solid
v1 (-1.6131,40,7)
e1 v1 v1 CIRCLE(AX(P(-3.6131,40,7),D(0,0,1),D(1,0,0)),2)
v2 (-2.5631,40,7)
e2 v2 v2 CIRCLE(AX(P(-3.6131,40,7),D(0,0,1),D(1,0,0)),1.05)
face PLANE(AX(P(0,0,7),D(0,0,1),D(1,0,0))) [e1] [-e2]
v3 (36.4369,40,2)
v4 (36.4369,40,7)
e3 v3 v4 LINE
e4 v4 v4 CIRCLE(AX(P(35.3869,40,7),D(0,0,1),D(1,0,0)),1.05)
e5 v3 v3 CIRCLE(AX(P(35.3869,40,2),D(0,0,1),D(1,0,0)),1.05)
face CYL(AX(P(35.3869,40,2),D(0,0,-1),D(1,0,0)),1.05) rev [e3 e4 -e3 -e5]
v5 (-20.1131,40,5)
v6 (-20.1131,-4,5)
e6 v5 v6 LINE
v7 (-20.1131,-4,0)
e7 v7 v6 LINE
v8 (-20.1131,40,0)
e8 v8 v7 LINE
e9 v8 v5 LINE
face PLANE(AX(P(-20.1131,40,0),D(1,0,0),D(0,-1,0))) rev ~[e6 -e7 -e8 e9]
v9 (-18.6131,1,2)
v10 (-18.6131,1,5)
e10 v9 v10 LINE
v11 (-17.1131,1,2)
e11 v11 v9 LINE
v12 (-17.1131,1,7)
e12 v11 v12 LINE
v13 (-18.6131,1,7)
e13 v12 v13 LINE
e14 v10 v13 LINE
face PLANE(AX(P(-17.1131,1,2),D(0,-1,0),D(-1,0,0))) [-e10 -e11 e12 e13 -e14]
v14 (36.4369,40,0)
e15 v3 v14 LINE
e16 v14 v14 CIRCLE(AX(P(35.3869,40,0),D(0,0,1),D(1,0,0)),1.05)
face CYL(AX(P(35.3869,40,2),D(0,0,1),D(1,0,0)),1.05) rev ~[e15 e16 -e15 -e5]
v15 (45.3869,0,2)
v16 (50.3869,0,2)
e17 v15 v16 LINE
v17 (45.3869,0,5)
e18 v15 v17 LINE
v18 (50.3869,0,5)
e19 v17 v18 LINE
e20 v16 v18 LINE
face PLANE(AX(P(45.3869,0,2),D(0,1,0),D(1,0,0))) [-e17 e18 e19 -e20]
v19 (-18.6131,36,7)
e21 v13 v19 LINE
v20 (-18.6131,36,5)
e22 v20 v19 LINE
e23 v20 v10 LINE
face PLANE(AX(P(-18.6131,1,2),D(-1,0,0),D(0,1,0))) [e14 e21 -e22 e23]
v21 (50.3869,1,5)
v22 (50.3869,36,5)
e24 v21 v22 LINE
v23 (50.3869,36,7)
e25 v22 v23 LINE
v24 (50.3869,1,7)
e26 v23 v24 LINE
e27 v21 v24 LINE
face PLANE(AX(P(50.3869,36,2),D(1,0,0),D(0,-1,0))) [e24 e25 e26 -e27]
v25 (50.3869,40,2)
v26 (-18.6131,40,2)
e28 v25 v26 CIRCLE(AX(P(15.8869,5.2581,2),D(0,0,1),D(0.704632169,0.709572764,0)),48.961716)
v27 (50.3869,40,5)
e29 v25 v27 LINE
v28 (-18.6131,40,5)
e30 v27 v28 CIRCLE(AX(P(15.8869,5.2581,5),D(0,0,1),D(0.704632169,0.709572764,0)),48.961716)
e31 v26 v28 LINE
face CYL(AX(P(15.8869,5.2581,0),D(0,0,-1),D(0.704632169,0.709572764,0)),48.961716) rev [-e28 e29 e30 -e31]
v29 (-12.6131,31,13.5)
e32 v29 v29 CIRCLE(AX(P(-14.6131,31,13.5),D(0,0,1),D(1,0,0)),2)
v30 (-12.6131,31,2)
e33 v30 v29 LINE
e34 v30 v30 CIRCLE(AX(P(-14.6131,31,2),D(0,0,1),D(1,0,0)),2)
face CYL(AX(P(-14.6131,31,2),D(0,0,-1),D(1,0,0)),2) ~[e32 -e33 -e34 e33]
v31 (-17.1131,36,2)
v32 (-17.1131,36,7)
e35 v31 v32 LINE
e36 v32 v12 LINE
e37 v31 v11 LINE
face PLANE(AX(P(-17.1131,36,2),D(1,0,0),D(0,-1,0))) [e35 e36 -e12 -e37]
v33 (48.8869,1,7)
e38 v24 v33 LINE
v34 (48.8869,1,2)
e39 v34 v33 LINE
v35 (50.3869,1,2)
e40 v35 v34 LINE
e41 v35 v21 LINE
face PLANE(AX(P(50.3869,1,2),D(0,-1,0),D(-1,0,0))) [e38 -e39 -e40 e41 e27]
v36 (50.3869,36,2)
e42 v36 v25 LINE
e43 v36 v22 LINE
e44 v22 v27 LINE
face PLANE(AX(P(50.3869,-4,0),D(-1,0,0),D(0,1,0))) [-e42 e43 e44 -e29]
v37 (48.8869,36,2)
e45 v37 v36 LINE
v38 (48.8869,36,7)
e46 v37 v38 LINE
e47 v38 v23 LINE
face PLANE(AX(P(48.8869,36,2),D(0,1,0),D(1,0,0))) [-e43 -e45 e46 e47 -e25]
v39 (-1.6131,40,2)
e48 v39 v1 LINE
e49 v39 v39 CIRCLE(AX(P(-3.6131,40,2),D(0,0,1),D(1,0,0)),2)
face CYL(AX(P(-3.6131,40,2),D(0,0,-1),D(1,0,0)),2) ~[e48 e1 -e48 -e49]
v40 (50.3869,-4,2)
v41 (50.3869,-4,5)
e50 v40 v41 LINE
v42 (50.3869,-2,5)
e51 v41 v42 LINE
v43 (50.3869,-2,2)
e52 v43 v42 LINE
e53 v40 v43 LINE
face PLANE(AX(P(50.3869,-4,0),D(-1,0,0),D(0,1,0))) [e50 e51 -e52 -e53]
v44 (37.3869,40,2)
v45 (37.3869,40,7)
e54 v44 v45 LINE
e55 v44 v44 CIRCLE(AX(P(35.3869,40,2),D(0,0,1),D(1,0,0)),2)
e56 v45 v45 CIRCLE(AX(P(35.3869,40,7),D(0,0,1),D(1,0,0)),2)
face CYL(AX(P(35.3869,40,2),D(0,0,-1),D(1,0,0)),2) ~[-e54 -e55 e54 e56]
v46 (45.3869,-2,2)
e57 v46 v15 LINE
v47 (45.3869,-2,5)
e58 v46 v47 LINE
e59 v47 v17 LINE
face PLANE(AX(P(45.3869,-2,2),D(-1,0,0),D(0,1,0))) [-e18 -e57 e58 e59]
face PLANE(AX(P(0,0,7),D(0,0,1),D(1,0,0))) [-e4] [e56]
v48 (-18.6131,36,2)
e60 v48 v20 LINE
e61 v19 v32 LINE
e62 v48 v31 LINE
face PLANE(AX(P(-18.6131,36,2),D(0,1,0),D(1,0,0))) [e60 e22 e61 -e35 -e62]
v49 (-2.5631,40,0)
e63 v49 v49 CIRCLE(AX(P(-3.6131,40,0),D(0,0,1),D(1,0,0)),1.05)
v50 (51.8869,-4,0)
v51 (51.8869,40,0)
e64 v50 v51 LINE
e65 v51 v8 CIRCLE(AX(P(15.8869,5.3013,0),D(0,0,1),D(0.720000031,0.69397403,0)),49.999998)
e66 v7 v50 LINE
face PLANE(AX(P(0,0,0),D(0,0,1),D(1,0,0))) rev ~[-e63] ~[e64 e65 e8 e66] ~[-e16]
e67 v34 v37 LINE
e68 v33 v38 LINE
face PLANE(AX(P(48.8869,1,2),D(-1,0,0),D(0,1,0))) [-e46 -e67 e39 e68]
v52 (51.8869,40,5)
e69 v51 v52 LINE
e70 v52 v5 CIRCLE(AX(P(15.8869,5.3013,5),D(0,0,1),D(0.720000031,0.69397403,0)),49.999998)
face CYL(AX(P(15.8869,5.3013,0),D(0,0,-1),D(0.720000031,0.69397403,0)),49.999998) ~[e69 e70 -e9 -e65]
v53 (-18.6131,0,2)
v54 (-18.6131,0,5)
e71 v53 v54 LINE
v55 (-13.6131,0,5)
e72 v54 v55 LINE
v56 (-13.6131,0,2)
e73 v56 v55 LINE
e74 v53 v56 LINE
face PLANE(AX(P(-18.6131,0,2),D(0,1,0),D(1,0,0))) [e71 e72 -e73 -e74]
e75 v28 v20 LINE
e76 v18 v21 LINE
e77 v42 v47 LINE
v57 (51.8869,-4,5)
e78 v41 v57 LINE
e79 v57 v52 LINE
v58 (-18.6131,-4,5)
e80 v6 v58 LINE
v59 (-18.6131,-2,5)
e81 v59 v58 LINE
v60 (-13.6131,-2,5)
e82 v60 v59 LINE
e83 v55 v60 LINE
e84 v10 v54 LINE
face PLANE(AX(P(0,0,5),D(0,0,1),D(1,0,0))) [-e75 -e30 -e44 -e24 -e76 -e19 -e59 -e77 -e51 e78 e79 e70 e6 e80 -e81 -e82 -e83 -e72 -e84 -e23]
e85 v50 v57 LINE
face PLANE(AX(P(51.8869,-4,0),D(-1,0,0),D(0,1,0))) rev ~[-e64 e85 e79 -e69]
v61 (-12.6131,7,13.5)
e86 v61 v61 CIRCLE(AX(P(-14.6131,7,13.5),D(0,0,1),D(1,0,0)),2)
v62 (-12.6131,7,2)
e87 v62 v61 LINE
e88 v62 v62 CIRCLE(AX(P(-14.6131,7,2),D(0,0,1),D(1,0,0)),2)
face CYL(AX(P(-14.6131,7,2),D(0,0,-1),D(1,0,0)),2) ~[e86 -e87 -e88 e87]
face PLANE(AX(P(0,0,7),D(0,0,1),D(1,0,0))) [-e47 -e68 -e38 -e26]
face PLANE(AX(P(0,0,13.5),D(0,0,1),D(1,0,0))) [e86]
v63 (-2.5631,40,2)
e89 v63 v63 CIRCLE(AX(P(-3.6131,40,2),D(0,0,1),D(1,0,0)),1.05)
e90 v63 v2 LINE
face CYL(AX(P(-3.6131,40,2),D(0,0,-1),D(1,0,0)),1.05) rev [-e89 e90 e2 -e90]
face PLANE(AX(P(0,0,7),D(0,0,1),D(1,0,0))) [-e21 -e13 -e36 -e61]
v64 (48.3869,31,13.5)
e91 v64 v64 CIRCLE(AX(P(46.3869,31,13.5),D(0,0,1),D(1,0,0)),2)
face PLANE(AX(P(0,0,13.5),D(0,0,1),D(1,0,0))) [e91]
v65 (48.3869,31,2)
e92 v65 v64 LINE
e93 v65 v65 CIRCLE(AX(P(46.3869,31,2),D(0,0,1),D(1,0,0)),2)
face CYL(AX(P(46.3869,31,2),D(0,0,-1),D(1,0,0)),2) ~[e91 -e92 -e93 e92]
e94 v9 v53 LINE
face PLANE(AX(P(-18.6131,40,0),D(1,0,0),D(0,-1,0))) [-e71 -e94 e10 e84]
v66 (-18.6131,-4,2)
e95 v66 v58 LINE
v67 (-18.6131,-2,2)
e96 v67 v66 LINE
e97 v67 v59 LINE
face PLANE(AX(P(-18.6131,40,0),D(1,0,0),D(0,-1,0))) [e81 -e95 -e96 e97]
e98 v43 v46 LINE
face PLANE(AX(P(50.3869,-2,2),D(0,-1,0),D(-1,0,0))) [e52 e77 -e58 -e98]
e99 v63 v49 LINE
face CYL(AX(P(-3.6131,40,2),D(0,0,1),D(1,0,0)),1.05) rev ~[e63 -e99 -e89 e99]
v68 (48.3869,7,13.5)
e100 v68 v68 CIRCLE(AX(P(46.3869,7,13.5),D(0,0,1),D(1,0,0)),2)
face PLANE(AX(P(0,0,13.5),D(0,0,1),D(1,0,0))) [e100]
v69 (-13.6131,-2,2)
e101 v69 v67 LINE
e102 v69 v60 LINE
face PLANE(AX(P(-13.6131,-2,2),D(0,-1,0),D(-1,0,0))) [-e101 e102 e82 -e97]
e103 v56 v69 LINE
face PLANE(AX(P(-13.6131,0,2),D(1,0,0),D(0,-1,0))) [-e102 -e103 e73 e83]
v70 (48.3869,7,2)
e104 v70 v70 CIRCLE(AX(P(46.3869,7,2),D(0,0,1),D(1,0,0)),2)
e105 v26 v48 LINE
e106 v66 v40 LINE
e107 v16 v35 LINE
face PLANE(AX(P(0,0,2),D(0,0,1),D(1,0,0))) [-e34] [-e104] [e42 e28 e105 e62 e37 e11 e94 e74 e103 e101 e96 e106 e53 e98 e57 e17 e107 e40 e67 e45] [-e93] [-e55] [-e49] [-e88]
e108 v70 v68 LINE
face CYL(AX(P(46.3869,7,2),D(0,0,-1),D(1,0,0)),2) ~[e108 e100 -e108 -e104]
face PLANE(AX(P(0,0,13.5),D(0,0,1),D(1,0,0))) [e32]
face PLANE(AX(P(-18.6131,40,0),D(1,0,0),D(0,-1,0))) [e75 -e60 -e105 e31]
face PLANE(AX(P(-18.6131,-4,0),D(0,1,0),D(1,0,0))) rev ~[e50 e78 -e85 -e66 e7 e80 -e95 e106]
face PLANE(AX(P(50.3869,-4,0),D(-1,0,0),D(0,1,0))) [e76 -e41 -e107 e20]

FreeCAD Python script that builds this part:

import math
import FreeCAD as App
import Part
import Sketcher

doc = App.newDocument("Part")
body = doc.addObject("PartDesign::Body", "Body")

# Sketch on XY plane
sketch1 = body.newObject("Sketcher::SketchObject", "Sketch")
sketch1.AttachmentSupport = (doc.getObject("XY_Plane"), [""])
sketch1.MapMode = "FlatFace"
sketch1.addGeometry(Part.LineSegment(App.Vector(-18.6131, 40, 0), App.Vector(-18.6131, -4, 0)), False)
sketch1.addGeometry(Part.LineSegment(App.Vector(-18.6131, -4, 0), App.Vector(50.3869, -4, 0)), False)
sketch1.addGeometry(Part.LineSegment(App.Vector(50.3869, -4, 0), App.Vector(50.3869, 40, 0)), False)
sketch1.addGeometry(Part.ArcOfCircle(Part.Circle(App.Vector(15.8869, 5.2581, 0), App.Vector(0, 0, 1), 48.961716), math.radians(45.200165), math.radians(134.799835)), False)
sketch1.addConstraint(Sketcher.Constraint("Coincident", 0, 2, 1, 1))
sketch1.addConstraint(Sketcher.Constraint("Coincident", 1, 2, 2, 1))
sketch1.addConstraint(Sketcher.Constraint("Coincident", 2, 2, 3, 1))
sketch1.addConstraint(Sketcher.Constraint("Coincident", 3, 2, 0, 1))
sketch1.addConstraint(Sketcher.Constraint("Vertical", 0))
sketch1.addConstraint(Sketcher.Constraint("Horizontal", 1))
sketch1.addConstraint(Sketcher.Constraint("Vertical", 2))
sketch1.addConstraint(Sketcher.Constraint("Horizontal", 2, 2, 3, 2))
sketch1.addConstraint(Sketcher.Constraint("DistanceY", 0, 2, 0, 1, 44.0))
sketch1.addConstraint(Sketcher.Constraint("DistanceX", 1, 1, 1, 2, 69.0))
sketch1.addConstraint(Sketcher.Constraint("DistanceY", 0, 2, -1, 1, 4.0))
sketch1.addConstraint(Sketcher.Constraint("Radius", 3, 48.9617))
sketch1.addConstraint(Sketcher.Constraint("DistanceX", -1, 1, 3, 3, 15.887))
pad1 = body.newObject("PartDesign::Pad", "Pad")
pad1.Profile = sketch1
pad1.Length = 2

# Sketch on XY plane
sketch2 = body.newObject("Sketcher::SketchObject", "Sketch001")
sketch2.AttachmentSupport = (doc.getObject("XY_Plane"), [""])
sketch2.MapMode = "FlatFace"
sketch2.addGeometry(Part.LineSegment(App.Vector(-20.1131, 40, 0), App.Vector(-20.1131, -4, 0)), False)
sketch2.addGeometry(Part.LineSegment(App.Vector(-20.1131, -4, 0), App.Vector(-18.6131, -4, 0)), False)
sketch2.addGeometry(Part.LineSegment(App.Vector(-18.6131, -4, 0), App.Vector(-18.6131, 40, 0)), False)
sketch2.addGeometry(Part.ArcOfCircle(Part.Circle(App.Vector(15.8869, 5.2581, 0), App.Vector(0, 0, 1), 48.961716), math.radians(45.200165), math.radians(134.799835)), False)
sketch2.addGeometry(Part.LineSegment(App.Vector(50.3869, 40, 0), App.Vector(50.3869, -4, 0)), False)
sketch2.addGeometry(Part.LineSegment(App.Vector(50.3869, -4, 0), App.Vector(51.8869, -4, 0)), False)
sketch2.addGeometry(Part.LineSegment(App.Vector(51.8869, -4, 0), App.Vector(51.8869, 40, 0)), False)
sketch2.addGeometry(Part.ArcOfCircle(Part.Circle(App.Vector(15.8869, 5.3013, 0), App.Vector(0, 0, 1), 49.999998), math.radians(43.945517), math.radians(136.054483)), False)
sketch2.addConstraint(Sketcher.Constraint("Coincident", 0, 2, 1, 1))
sketch2.addConstraint(Sketcher.Constraint("Coincident", 1, 2, 2, 1))
sketch2.addConstraint(Sketcher.Constraint("Coincident", 2, 2, 3, 2))
sketch2.addConstraint(Sketcher.Constraint("Coincident", 3, 1, 4, 1))
sketch2.addConstraint(Sketcher.Constraint("Coincident", 4, 2, 5, 1))
sketch2.addConstraint(Sketcher.Constraint("Coincident", 5, 2, 6, 1))
sketch2.addConstraint(Sketcher.Constraint("Coincident", 6, 2, 7, 1))
sketch2.addConstraint(Sketcher.Constraint("Coincident", 7, 2, 0, 1))
sketch2.addConstraint(Sketcher.Constraint("Vertical", 0))
sketch2.addConstraint(Sketcher.Constraint("Horizontal", 1))
sketch2.addConstraint(Sketcher.Constraint("Vertical", 2))
sketch2.addConstraint(Sketcher.Constraint("Vertical", 4))
sketch2.addConstraint(Sketcher.Constraint("Horizontal", 5))
sketch2.addConstraint(Sketcher.Constraint("Vertical", 6))
sketch2.addConstraint(Sketcher.Constraint("Horizontal", 2, 2, 3, 1))
sketch2.addConstraint(Sketcher.Constraint("Horizontal", 1, 2, 4, 2))
sketch2.addConstraint(Sketcher.Constraint("Horizontal", 3, 1, 6, 2))
sketch2.addConstraint(Sketcher.Constraint("Horizontal", 6, 2, 7, 2))
sketch2.addConstraint(Sketcher.Constraint("Vertical", 3, 3, 7, 3))
sketch2.addConstraint(Sketcher.Constraint("Radius", 7, 50.0))
sketch2.addConstraint(Sketcher.Constraint("DistanceY", 0, 2, 0, 1, 44.0))
sketch2.addConstraint(Sketcher.Constraint("DistanceX", 1, 1, 1, 2, 1.5))
sketch2.addConstraint(Sketcher.Constraint("DistanceY", 0, 2, -1, 1, 4.0))
sketch2.addConstraint(Sketcher.Constraint("DistanceX", 0, 2, 3, 3, 36.0))
sketch2.addConstraint(Sketcher.Constraint("Radius", 3, 48.9617))
sketch2.addConstraint(Sketcher.Constraint("DistanceX", -1, 1, 3, 3, 15.887))
pad2 = body.newObject("PartDesign::Pad", "Pad001")
pad2.Profile = sketch2
pad2.Length = 5

# Sketch on XY plane
sketch3 = body.newObject("Sketcher::SketchObject", "Sketch002")
sketch3.AttachmentSupport = (doc.getObject("XY_Plane"), [""])
sketch3.MapMode = "FlatFace"
sketch3.AttachmentOffset = App.Placement(App.Vector(0, 0, 2), App.Rotation())
sketch3.addGeometry(Part.LineSegment(App.Vector(-18.6131, 0, 0), App.Vector(-18.6131, -2, 0)), False)
sketch3.addGeometry(Part.LineSegment(App.Vector(-18.6131, -2, 0), App.Vector(-13.6131, -2, 0)), False)
sketch3.addGeometry(Part.LineSegment(App.Vector(-13.6131, -2, 0), App.Vector(-13.6131, 0, 0)), False)
sketch3.addGeometry(Part.LineSegment(App.Vector(-13.6131, 0, 0), App.Vector(-18.6131, 0, 0)), False)
sketch3.addGeometry(Part.LineSegment(App.Vector(50.3869, -2, 0), App.Vector(50.3869, 0, 0)), False)
sketch3.addGeometry(Part.LineSegment(App.Vector(50.3869, 0, 0), App.Vector(45.3869, 0, 0)), False)
sketch3.addGeometry(Part.LineSegment(App.Vector(45.3869, 0, 0), App.Vector(45.3869, -2, 0)), False)
sketch3.addGeometry(Part.LineSegment(App.Vector(45.3869, -2, 0), App.Vector(50.3869, -2, 0)), False)
sketch3.addConstraint(Sketcher.Constraint("Coincident", 0, 2, 1, 1))
sketch3.addConstraint(Sketcher.Constraint("Coincident", 1, 2, 2, 1))
sketch3.addConstraint(Sketcher.Constraint("Coincident", 2, 2, 3, 1))
sketch3.addConstraint(Sketcher.Constraint("Coincident", 3, 2, 0, 1))
sketch3.addConstraint(Sketcher.Constraint("Coincident", 4, 2, 5, 1))
sketch3.addConstraint(Sketcher.Constraint("Coincident", 5, 2, 6, 1))
sketch3.addConstraint(Sketcher.Constraint("Coincident", 6, 2, 7, 1))
sketch3.addConstraint(Sketcher.Constraint("Coincident", 7, 2, 4, 1))
sketch3.addConstraint(Sketcher.Constraint("Vertical", 0))
sketch3.addConstraint(Sketcher.Constraint("Horizontal", 1))
sketch3.addConstraint(Sketcher.Constraint("Vertical", 2))
sketch3.addConstraint(Sketcher.Constraint("Horizontal", 3))
sketch3.addConstraint(Sketcher.Constraint("Vertical", 4))
sketch3.addConstraint(Sketcher.Constraint("Horizontal", 5))
sketch3.addConstraint(Sketcher.Constraint("Vertical", 6))
sketch3.addConstraint(Sketcher.Constraint("Horizontal", 7))
sketch3.addConstraint(Sketcher.Constraint("PointOnObject", 2, 2, -1))
sketch3.addConstraint(Sketcher.Constraint("PointOnObject", 4, 2, -1))
sketch3.addConstraint(Sketcher.Constraint("Horizontal", 1, 2, 6, 2))
sketch3.addConstraint(Sketcher.Constraint("Equal", 3, 5))
sketch3.addConstraint(Sketcher.Constraint("DistanceX", 1, 1, 1, 2, 5.0))
sketch3.addConstraint(Sketcher.Constraint("DistanceY", 0, 2, 0, 1, 2.0))
sketch3.addConstraint(Sketcher.Constraint("DistanceX", 2, 2, 5, 2, 59.0))
sketch3.addConstraint(Sketcher.Constraint("DistanceX", 0, 2, -1, 1, 18.613))
pad3 = body.newObject("PartDesign::Pad", "Pad002")
pad3.Profile = sketch3
pad3.Length = 3

# Sketch on XY plane
sketch4 = body.newObject("Sketcher::SketchObject", "Sketch003")
sketch4.AttachmentSupport = (doc.getObject("XY_Plane"), [""])
sketch4.MapMode = "FlatFace"
sketch4.AttachmentOffset = App.Placement(App.Vector(0, 0, 2), App.Rotation())
sketch4.addGeometry(Part.Circle(App.Vector(-14.6131, 7, 0), App.Vector(0, 0, 1), 2), False)
sketch4.addGeometry(Part.Circle(App.Vector(46.3869, 7, 0), App.Vector(0, 0, 1), 2), False)
sketch4.addGeometry(Part.Circle(App.Vector(46.3869, 31, 0), App.Vector(0, 0, 1), 2), False)
sketch4.addGeometry(Part.Circle(App.Vector(-14.6131, 31, 0), App.Vector(0, 0, 1), 2), False)
sketch4.addConstraint(Sketcher.Constraint("Equal", 0, 1))
sketch4.addConstraint(Sketcher.Constraint("Equal", 1, 2))
sketch4.addConstraint(Sketcher.Constraint("Equal", 2, 3))
sketch4.addConstraint(Sketcher.Constraint("Horizontal", 0, 3, 1, 3))
sketch4.addConstraint(Sketcher.Constraint("Horizontal", 2, 3, 3, 3))
sketch4.addConstraint(Sketcher.Constraint("Vertical", 1, 3, 2, 3))
sketch4.addConstraint(Sketcher.Constraint("Vertical", 0, 3, 3, 3))
sketch4.addConstraint(Sketcher.Constraint("Diameter", 0, 4.0))
sketch4.addConstraint(Sketcher.Constraint("DistanceY", -1, 1, 0, 3, 7.0))
sketch4.addConstraint(Sketcher.Constraint("DistanceY", -1, 1, 2, 3, 31.0))
sketch4.addConstraint(Sketcher.Constraint("DistanceX", 0, 3, 1, 3, 61.0))
sketch4.addConstraint(Sketcher.Constraint("DistanceX", 0, 3, -1, 1, 14.613))
pad4 = body.newObject("PartDesign::Pad", "Pad003")
pad4.Profile = sketch4
pad4.Length = 11.5

# Sketch on XY plane
sketch5 = body.newObject("Sketcher::SketchObject", "Sketch004")
sketch5.AttachmentSupport = (doc.getObject("XY_Plane"), [""])
sketch5.MapMode = "FlatFace"
sketch5.AttachmentOffset = App.Placement(App.Vector(0, 0, 2), App.Rotation())
sketch5.addGeometry(Part.LineSegment(App.Vector(-18.6131, 36, 0), App.Vector(-18.6131, 1, 0)), False)
sketch5.addGeometry(Part.LineSegment(App.Vector(-18.6131, 1, 0), App.Vector(-17.1131, 1, 0)), False)
sketch5.addGeometry(Part.LineSegment(App.Vector(-17.1131, 1, 0), App.Vector(-17.1131, 36, 0)), False)
sketch5.addGeometry(Part.LineSegment(App.Vector(-17.1131, 36, 0), App.Vector(-18.6131, 36, 0)), False)
sketch5.addGeometry(Part.LineSegment(App.Vector(50.3869, 1, 0), App.Vector(50.3869, 36, 0)), False)
sketch5.addGeometry(Part.LineSegment(App.Vector(50.3869, 36, 0), App.Vector(48.8869, 36, 0)), False)
sketch5.addGeometry(Part.LineSegment(App.Vector(48.8869, 36, 0), App.Vector(48.8869, 1, 0)), False)
sketch5.addGeometry(Part.LineSegment(App.Vector(48.8869, 1, 0), App.Vector(50.3869, 1, 0)), False)
sketch5.addGeometry(Part.Circle(App.Vector(-3.6131, 40, 0), App.Vector(0, 0, 1), 2), False)
sketch5.addGeometry(Part.Circle(App.Vector(-3.6131, 40, 0), App.Vector(0, 0, 1), 1.05), False)
sketch5.addGeometry(Part.Circle(App.Vector(35.3869, 40, 0), App.Vector(0, 0, 1), 2), False)
sketch5.addGeometry(Part.Circle(App.Vector(35.3869, 40, 0), App.Vector(0, 0, 1), 1.05), False)
sketch5.addConstraint(Sketcher.Constraint("Coincident", 0, 2, 1, 1))
sketch5.addConstraint(Sketcher.Constraint("Coincident", 1, 2, 2, 1))
sketch5.addConstraint(Sketcher.Constraint("Coincident", 2, 2, 3, 1))
sketch5.addConstraint(Sketcher.Constraint("Coincident", 3, 2, 0, 1))
sketch5.addConstraint(Sketcher.Constraint("Coincident", 4, 2, 5, 1))
sketch5.addConstraint(Sketcher.Constraint("Coincident", 5, 2, 6, 1))
sketch5.addConstraint(Sketcher.Constraint("Coincident", 6, 2, 7, 1))
sketch5.addConstraint(Sketcher.Constraint("Coincident", 7, 2, 4, 1))
sketch5.addConstraint(Sketcher.Constraint("Vertical", 0))
sketch5.addConstraint(Sketcher.Constraint("Horizontal", 1))
sketch5.addConstraint(Sketcher.Constraint("Vertical", 2))
sketch5.addConstraint(Sketcher.Constraint("Horizontal", 3))
sketch5.addConstraint(Sketcher.Constraint("Vertical", 4))
sketch5.addConstraint(Sketcher.Constraint("Horizontal", 5))
sketch5.addConstraint(Sketcher.Constraint("Vertical", 6))
sketch5.addConstraint(Sketcher.Constraint("Horizontal", 7))
sketch5.addConstraint(Sketcher.Constraint("Coincident", 9, 3, 8, 3))
sketch5.addConstraint(Sketcher.Constraint("Coincident", 11, 3, 10, 3))
sketch5.addConstraint(Sketcher.Constraint("Equal", 8, 10))
sketch5.addConstraint(Sketcher.Constraint("Equal", 9, 11))
sketch5.addConstraint(Sketcher.Constraint("Horizontal", 9, 3, 10, 3))
sketch5.addConstraint(Sketcher.Constraint("Horizontal", 3, 2, 4, 2))
sketch5.addConstraint(Sketcher.Constraint("Horizontal", 1, 2, 6, 2))
sketch5.addConstraint(Sketcher.Constraint("Equal", 3, 5))
sketch5.addConstraint(Sketcher.Constraint("Diameter", 8, 4.0))
sketch5.addConstraint(Sketcher.Constraint("Diameter", 9, 2.1))
sketch5.addConstraint(Sketcher.Constraint("DistanceY", 0, 2, 0, 1, 35.0))
sketch5.addConstraint(Sketcher.Constraint("DistanceX", 1, 1, 1, 2, 1.5))
sketch5.addConstraint(Sketcher.Constraint("DistanceX", 0, 2, 8, 3, 15.0))
sketch5.addConstraint(Sketcher.Constraint("DistanceY", 2, 2, 8, 3, 4.0))
sketch5.addConstraint(Sketcher.Constraint("DistanceX", 10, 3, 4, 2, 15.0))
sketch5.addConstraint(Sketcher.Constraint("DistanceY", -1, 1, 8, 3, 40.0))
sketch5.addConstraint(Sketcher.Constraint("DistanceX", 8, 3, 10, 3, 39.0))
sketch5.addConstraint(Sketcher.Constraint("DistanceX", 8, 3, -1, 1, 3.613))
pad5 = body.newObject("PartDesign::Pad", "Pad004")
pad5.Profile = sketch5
pad5.Length = 5

# Sketch on XY plane
sketch6 = body.newObject("Sketcher::SketchObject", "Sketch005")
sketch6.AttachmentSupport = (doc.getObject("XY_Plane"), [""])
sketch6.MapMode = "FlatFace"
sketch6.AttachmentOffset = App.Placement(App.Vector(0, 0, 2), App.Rotation())
sketch6.addGeometry(Part.Circle(App.Vector(-3.6131, 40, 0), App.Vector(0, 0, 1), 1.05), False)
sketch6.addGeometry(Part.Circle(App.Vector(35.3869, 40, 0), App.Vector(0, 0, 1), 1.05), False)
sketch6.addConstraint(Sketcher.Constraint("Equal", 0, 1))
sketch6.addConstraint(Sketcher.Constraint("Horizontal", 0, 3, 1, 3))
sketch6.addConstraint(Sketcher.Constraint("Diameter", 0, 2.1))
sketch6.addConstraint(Sketcher.Constraint("DistanceY", -1, 1, 0, 3, 40.0))
sketch6.addConstraint(Sketcher.Constraint("DistanceX", 0, 3, 1, 3, 39.0))
sketch6.addConstraint(Sketcher.Constraint("DistanceX", 0, 3, -1, 1, 3.613))
pocket1 = body.newObject("PartDesign::Pocket", "Pocket")
pocket1.Profile = sketch6
pocket1.Length = 2

doc.recompute()
